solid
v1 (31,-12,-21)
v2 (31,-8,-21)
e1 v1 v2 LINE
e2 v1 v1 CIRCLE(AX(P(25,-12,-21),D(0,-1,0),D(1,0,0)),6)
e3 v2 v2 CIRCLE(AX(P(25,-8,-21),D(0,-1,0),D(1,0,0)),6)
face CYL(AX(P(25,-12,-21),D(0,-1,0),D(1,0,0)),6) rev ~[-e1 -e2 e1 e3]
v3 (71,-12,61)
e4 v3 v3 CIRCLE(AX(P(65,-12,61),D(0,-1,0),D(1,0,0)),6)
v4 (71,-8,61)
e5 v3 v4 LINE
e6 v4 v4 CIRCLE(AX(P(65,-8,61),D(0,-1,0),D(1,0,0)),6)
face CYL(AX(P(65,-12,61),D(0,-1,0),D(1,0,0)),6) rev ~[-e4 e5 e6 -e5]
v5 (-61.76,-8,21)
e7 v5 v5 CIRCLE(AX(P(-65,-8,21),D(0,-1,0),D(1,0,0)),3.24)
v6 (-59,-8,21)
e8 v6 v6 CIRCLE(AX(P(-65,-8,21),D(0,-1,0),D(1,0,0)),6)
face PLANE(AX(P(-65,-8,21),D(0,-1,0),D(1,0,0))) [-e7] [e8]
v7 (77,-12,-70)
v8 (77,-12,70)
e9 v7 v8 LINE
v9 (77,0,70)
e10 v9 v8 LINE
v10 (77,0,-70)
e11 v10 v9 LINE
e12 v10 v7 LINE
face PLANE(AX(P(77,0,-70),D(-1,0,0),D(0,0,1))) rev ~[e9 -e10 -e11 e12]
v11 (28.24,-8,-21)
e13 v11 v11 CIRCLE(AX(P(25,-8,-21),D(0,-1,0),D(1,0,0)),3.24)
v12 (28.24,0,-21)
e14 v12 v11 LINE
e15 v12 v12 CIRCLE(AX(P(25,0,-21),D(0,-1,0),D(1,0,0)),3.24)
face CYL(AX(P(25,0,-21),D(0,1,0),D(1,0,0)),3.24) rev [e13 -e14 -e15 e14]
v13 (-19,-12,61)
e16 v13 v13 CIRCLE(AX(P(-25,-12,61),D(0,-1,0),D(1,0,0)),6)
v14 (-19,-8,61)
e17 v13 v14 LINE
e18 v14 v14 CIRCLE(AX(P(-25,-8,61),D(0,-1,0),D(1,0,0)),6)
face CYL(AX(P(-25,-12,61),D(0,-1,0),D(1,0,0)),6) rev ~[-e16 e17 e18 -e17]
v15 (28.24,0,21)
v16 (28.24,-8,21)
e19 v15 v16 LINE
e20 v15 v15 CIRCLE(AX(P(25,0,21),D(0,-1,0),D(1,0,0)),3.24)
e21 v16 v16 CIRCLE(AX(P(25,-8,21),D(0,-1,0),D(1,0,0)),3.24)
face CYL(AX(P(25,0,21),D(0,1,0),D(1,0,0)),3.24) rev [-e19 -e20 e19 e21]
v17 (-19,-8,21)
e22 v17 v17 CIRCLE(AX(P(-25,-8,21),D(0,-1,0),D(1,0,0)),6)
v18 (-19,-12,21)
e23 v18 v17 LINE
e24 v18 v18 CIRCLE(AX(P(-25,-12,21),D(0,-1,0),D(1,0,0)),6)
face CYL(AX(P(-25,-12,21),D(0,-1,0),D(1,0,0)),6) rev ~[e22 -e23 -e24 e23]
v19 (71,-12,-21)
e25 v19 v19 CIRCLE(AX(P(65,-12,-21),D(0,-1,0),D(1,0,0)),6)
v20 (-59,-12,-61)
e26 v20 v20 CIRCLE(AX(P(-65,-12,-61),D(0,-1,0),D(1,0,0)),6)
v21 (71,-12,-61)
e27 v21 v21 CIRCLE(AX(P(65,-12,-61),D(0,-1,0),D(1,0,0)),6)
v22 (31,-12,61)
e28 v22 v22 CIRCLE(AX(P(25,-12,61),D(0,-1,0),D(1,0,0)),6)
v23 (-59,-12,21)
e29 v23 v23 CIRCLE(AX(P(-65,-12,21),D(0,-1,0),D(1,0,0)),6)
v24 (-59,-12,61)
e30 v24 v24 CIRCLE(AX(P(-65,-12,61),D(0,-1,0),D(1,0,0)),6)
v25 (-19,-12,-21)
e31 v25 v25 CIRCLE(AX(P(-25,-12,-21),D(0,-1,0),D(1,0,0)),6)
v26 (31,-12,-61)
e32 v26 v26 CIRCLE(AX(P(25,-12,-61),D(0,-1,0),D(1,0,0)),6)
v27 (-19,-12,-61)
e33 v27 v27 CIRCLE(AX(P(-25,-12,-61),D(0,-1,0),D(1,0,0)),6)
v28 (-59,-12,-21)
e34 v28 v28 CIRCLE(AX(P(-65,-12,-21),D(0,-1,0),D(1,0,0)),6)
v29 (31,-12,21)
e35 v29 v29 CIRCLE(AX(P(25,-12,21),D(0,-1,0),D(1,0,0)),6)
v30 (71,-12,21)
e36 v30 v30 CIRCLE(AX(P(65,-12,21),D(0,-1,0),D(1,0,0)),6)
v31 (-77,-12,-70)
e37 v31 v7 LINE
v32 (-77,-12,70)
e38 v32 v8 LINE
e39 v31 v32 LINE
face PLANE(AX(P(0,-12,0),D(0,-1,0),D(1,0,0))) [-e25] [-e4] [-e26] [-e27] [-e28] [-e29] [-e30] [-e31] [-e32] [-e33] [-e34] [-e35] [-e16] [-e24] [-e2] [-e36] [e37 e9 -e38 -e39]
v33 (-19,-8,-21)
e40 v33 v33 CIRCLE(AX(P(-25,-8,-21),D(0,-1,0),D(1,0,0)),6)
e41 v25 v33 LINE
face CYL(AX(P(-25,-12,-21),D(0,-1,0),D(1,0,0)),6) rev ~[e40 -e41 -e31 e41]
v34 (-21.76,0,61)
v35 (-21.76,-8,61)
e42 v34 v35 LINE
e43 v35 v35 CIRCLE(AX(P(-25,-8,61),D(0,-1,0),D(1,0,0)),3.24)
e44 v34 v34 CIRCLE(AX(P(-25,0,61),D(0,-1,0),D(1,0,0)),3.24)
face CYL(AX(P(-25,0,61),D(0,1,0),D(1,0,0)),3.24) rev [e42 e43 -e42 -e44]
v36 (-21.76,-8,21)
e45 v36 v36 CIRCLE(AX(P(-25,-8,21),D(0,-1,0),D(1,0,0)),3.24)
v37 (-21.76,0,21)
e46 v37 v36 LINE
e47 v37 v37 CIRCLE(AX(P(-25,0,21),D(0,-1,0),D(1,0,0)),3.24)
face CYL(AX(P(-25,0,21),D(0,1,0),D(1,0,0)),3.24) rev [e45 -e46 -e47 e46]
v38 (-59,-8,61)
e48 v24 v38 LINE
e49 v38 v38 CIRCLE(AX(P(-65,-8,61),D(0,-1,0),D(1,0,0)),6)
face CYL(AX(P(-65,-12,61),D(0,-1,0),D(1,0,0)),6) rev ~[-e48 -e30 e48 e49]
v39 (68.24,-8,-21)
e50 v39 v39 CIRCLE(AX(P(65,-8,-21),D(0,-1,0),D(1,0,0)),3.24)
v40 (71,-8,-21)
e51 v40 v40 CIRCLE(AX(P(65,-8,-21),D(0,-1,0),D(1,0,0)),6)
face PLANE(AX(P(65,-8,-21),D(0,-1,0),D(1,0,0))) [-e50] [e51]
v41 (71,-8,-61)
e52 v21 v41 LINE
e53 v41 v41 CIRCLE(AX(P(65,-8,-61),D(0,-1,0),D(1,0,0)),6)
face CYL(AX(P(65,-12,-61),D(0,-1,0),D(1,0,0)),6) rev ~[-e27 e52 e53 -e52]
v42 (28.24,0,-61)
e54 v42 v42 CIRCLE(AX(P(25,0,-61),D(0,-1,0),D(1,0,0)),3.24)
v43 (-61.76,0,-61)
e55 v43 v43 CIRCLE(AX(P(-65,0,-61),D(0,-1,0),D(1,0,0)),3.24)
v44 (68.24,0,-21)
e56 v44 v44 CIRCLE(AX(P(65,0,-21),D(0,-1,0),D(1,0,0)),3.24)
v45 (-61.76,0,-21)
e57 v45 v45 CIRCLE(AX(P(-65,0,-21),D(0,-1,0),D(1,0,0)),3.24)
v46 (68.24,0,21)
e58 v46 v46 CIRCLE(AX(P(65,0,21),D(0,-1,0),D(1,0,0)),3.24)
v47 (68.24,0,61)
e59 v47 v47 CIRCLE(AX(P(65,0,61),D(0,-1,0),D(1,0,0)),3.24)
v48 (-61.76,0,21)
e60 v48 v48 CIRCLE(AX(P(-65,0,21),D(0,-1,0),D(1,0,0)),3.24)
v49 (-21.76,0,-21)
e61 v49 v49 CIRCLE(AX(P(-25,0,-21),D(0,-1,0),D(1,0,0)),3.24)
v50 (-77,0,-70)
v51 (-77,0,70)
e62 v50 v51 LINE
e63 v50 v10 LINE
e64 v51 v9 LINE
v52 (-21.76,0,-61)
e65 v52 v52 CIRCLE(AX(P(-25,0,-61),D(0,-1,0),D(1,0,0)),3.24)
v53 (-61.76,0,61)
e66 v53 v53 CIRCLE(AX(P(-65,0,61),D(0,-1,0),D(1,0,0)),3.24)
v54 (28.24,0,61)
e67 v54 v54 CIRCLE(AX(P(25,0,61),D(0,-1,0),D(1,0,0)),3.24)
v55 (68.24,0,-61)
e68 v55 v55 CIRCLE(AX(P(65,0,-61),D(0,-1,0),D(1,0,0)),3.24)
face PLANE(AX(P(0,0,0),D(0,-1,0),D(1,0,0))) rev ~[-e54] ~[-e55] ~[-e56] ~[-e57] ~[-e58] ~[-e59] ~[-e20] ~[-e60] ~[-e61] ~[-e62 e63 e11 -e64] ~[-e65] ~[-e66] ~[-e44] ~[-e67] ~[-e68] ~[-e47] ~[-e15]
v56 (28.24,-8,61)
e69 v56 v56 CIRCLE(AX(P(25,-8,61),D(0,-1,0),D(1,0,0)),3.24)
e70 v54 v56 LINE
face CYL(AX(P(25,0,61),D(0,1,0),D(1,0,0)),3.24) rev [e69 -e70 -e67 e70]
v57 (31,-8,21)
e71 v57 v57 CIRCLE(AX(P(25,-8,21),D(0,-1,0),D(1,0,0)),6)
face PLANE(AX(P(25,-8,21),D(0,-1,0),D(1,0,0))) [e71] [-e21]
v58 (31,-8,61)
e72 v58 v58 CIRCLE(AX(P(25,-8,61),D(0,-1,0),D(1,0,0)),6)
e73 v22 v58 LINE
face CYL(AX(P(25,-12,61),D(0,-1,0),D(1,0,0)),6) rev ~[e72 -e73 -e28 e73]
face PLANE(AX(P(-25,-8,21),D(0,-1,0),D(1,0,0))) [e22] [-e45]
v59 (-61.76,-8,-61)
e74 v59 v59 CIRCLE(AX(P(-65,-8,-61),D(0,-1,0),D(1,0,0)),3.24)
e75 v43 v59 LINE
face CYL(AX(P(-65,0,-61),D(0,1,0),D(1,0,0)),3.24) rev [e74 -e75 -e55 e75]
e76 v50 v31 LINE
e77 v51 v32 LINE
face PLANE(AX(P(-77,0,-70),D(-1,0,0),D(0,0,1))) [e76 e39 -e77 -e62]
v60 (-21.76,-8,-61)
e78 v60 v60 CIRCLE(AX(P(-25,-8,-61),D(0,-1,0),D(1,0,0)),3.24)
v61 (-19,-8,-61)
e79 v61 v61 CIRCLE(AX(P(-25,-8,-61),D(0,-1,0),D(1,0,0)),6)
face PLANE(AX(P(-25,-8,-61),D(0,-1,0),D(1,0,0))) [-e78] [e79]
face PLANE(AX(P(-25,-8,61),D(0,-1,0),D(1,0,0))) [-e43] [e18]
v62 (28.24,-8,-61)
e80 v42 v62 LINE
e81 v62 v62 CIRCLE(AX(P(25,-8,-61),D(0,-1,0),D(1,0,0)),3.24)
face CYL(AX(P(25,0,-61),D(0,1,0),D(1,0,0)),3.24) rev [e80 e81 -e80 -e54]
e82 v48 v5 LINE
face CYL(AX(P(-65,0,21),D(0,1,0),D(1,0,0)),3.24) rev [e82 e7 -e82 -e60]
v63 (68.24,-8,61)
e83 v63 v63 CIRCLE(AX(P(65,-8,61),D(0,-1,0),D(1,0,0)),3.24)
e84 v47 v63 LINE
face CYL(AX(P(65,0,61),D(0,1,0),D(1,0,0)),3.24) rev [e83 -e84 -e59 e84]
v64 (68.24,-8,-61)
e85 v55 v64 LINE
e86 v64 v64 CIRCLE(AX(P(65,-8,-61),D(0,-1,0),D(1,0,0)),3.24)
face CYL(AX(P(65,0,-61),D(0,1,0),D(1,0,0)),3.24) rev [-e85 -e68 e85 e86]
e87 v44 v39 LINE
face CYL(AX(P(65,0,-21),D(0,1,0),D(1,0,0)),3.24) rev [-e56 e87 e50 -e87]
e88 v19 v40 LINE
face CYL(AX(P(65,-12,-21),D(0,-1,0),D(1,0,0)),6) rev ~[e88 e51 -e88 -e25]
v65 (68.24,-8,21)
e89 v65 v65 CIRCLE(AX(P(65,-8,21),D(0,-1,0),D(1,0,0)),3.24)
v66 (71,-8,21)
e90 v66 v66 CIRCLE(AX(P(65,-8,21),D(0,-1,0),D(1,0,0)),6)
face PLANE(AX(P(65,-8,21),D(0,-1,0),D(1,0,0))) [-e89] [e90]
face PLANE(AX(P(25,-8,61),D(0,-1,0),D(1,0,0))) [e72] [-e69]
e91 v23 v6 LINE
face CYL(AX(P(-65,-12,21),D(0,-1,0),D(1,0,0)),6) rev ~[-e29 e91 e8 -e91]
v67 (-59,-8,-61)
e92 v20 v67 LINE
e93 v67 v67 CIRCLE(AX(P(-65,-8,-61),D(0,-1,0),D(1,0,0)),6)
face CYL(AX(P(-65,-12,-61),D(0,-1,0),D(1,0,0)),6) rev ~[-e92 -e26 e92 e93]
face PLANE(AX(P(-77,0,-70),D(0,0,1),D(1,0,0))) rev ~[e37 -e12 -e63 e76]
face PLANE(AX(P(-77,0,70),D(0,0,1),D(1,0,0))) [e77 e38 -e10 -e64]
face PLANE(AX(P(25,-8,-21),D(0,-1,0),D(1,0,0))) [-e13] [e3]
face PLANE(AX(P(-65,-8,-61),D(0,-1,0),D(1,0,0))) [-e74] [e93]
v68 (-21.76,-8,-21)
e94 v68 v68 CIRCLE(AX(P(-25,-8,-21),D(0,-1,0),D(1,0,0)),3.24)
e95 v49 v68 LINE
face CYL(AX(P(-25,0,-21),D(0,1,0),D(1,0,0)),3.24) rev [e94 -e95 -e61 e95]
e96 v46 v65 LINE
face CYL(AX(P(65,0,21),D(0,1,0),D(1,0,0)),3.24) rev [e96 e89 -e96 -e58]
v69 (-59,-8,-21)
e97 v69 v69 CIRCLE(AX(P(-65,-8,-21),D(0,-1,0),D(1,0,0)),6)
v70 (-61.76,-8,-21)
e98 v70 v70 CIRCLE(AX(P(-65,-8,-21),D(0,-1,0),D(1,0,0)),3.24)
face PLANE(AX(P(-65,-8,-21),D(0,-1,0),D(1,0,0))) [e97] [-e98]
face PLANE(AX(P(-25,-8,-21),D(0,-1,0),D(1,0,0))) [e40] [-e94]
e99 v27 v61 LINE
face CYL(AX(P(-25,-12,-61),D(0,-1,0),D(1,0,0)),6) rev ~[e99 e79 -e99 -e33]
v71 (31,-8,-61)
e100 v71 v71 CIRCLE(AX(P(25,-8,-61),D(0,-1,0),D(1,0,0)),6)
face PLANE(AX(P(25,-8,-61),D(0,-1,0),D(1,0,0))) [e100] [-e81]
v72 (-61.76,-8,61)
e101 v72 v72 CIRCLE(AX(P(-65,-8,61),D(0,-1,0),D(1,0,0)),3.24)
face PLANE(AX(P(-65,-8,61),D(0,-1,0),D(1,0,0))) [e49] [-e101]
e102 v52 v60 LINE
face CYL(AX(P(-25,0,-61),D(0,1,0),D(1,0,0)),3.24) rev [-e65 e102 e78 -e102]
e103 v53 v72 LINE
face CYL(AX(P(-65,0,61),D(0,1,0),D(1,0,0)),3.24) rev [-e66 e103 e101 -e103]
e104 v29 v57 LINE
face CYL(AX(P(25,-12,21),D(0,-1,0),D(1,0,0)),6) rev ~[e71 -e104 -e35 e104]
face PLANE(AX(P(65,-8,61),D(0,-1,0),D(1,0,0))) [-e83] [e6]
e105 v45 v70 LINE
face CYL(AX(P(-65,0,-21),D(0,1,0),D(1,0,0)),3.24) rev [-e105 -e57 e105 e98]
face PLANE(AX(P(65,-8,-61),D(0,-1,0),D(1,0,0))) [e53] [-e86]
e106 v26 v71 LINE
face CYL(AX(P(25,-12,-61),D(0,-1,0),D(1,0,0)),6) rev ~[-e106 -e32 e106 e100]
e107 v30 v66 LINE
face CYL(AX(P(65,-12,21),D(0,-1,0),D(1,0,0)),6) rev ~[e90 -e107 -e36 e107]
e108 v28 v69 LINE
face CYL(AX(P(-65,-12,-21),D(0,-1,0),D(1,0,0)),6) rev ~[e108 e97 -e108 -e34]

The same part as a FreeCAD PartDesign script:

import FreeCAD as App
import Part
import Sketcher
from FreeCAD import Vector
Q = App.Units.Quantity

doc = App.newDocument("Part")
body = doc.addObject("PartDesign::Body", "Body")

sketch1 = body.newObject("Sketcher::SketchObject", "Sketch")
sketch1.AttachmentSupport = (doc.getObject("XZ_Plane"), [""])
sketch1.MapMode = "FlatFace"
sketch1.addGeometry([
    Part.LineSegment(Vector(-77, 70, 0), Vector(-77, -70, 0)),
    Part.LineSegment(Vector(-77, -70, 0), Vector(77, -70, 0)),
    Part.LineSegment(Vector(77, -70, 0), Vector(77, 70, 0)),
    Part.LineSegment(Vector(77, 70, 0), Vector(-77, 70, 0)),
    Part.Circle(Vector(-65, -61, 0), Vector(0, 0, 1), 3.2),
    Part.Circle(Vector(-25, -61, 0), Vector(0, 0, 1), 3.2),
    Part.Circle(Vector(-65, -21, 0), Vector(0, 0, 1), 3.2),
    Part.Circle(Vector(-25, -21, 0), Vector(0, 0, 1), 3.2),
    Part.Circle(Vector(25, -61, 0), Vector(0, 0, 1), 3.2),
    Part.Circle(Vector(65, -61, 0), Vector(0, 0, 1), 3.2),
    Part.Circle(Vector(25, -21, 0), Vector(0, 0, 1), 3.2),
    Part.Circle(Vector(65, -21, 0), Vector(0, 0, 1), 3.2),
    Part.Circle(Vector(-65, 21, 0), Vector(0, 0, 1), 3.2),
    Part.Circle(Vector(-25, 21, 0), Vector(0, 0, 1), 3.2),
    Part.Circle(Vector(-65, 61, 0), Vector(0, 0, 1), 3.2),
    Part.Circle(Vector(-25, 61, 0), Vector(0, 0, 1), 3.2),
    Part.Circle(Vector(25, 21, 0), Vector(0, 0, 1), 3.2),
    Part.Circle(Vector(65, 21, 0), Vector(0, 0, 1), 3.2),
    Part.Circle(Vector(25, 61, 0), Vector(0, 0, 1), 3.2),
    Part.Circle(Vector(65, 61, 0), Vector(0, 0, 1), 3.2),
], False)
sketch1.addConstraint([
    Sketcher.Constraint("Coincident", 0, 2, 1, 1),
    Sketcher.Constraint("Coincident", 1, 2, 2, 1),
    Sketcher.Constraint("Coincident", 2, 2, 3, 1),
    Sketcher.Constraint("Coincident", 3, 2, 0, 1),
    Sketcher.Constraint("Vertical", 0),
    Sketcher.Constraint("Horizontal", 1),
    Sketcher.Constraint("Vertical", 2),
    Sketcher.Constraint("Horizontal", 3),
    Sketcher.Constraint("Equal", 4, 5),
    Sketcher.Constraint("Equal", 5, 6),
    Sketcher.Constraint("Equal", 6, 7),
    Sketcher.Constraint("Equal", 7, 8),
    Sketcher.Constraint("Equal", 8, 9),
    Sketcher.Constraint("Equal", 9, 10),
    Sketcher.Constraint("Equal", 10, 11),
    Sketcher.Constraint("Equal", 11, 12),
    Sketcher.Constraint("Equal", 12, 13),
    Sketcher.Constraint("Equal", 13, 14),
    Sketcher.Constraint("Equal", 14, 15),
    Sketcher.Constraint("Equal", 15, 16),
    Sketcher.Constraint("Equal", 16, 17),
    Sketcher.Constraint("Equal", 17, 18),
    Sketcher.Constraint("Equal", 18, 19),
    Sketcher.Constraint("Symmetric", 11, 3, 12, 3, -1, 1),
    Sketcher.Constraint("Symmetric", 10, 3, 13, 3, -1, 1),
    Sketcher.Constraint("Symmetric", 9, 3, 14, 3, -1, 1),
    Sketcher.Constraint("Symmetric", 8, 3, 15, 3, -1, 1),
    Sketcher.Constraint("Symmetric", 7, 3, 16, 3, -1, 1),
    Sketcher.Constraint("Symmetric", 6, 3, 17, 3, -1, 1),
    Sketcher.Constraint("Symmetric", 5, 3, 18, 3, -1, 1),
    Sketcher.Constraint("Symmetric", 4, 3, 19, 3, -1, 1),
    Sketcher.Constraint("Symmetric", 0, 2, 2, 2, -1, 1),
    Sketcher.Constraint("Symmetric", 5, 3, 8, 3, -2),
    Sketcher.Constraint("Symmetric", 4, 3, 9, 3, -2),
    Sketcher.Constraint("Symmetric", 7, 3, 10, 3, -2),
    Sketcher.Constraint("Symmetric", 6, 3, 11, 3, -2),
    Sketcher.Constraint("Horizontal", 4, 3, 5, 3),
    Sketcher.Constraint("Horizontal", 6, 3, 7, 3),
    Sketcher.Constraint("Vertical", 4, 3, 6, 3),
    Sketcher.Constraint("Vertical", 5, 3, 7, 3),
    Sketcher.Constraint("Diameter", 4, Q("6.48 mm")),
    Sketcher.Constraint("DistanceX", 1, 1, 1, 2, Q("154 mm")),
    Sketcher.Constraint("DistanceY", 0, 2, 0, 1, Q("140 mm")),
    Sketcher.Constraint("DistanceX", 4, 3, -1, 1, Q("65 mm")),
    Sketcher.Constraint("DistanceY", 4, 3, -1, 1, Q("61 mm")),
    Sketcher.Constraint("DistanceX", 5, 3, -1, 1, Q("25 mm")),
    Sketcher.Constraint("DistanceY", 6, 3, -1, 1, Q("21 mm")),
])
pad1 = body.newObject("PartDesign::Pad", "Pad")
pad1.Profile = sketch1
pad1.Length = 12

sketch2 = body.newObject("Sketcher::SketchObject", "Sketch001")
sketch2.AttachmentSupport = (doc.getObject("XZ_Plane"), [""])
sketch2.MapMode = "FlatFace"
sketch2.AttachmentOffset = App.Placement(Vector(0, 0, 12), App.Rotation())
sketch2.addGeometry([
    Part.Circle(Vector(-65, 61, 0), Vector(0, 0, 1), 6),
    Part.Circle(Vector(-65, 61, 0), Vector(0, 0, 1), 3.2),
    Part.Circle(Vector(-25, 61, 0), Vector(0, 0, 1), 6),
    Part.Circle(Vector(-25, 61, 0), Vector(0, 0, 1), 3.2),
    Part.Circle(Vector(25, 61, 0), Vector(0, 0, 1), 6),
    Part.Circle(Vector(25, 61, 0), Vector(0, 0, 1), 3.2),
    Part.Circle(Vector(65, 61, 0), Vector(0, 0, 1), 6),
    Part.Circle(Vector(65, 61, 0), Vector(0, 0, 1), 3.2),
    Part.Circle(Vector(65, 21, 0), Vector(0, 0, 1), 6),
    Part.Circle(Vector(65, 21, 0), Vector(0, 0, 1), 3.2),
    Part.Circle(Vector(25, 21, 0), Vector(0, 0, 1), 6),
    Part.Circle(Vector(25, 21, 0), Vector(0, 0, 1), 3.2),
    Part.Circle(Vector(-25, 21, 0), Vector(0, 0, 1), 6),
    Part.Circle(Vector(-25, 21, 0), Vector(0, 0, 1), 3.2),
    Part.Circle(Vector(-65, 21, 0), Vector(0, 0, 1), 6),
    Part.Circle(Vector(-65, 21, 0), Vector(0, 0, 1), 3.2),
    Part.Circle(Vector(-65, -21, 0), Vector(0, 0, 1), 6),
    Part.Circle(Vector(-65, -21, 0), Vector(0, 0, 1), 3.2),
    Part.Circle(Vector(-25, -21, 0), Vector(0, 0, 1), 6),
    Part.Circle(Vector(-25, -21, 0), Vector(0, 0, 1), 3.2),
    Part.Circle(Vector(25, -21, 0), Vector(0, 0, 1), 6),
    Part.Circle(Vector(25, -21, 0), Vector(0, 0, 1), 3.2),
    Part.Circle(Vector(65, -21, 0), Vector(0, 0, 1), 6),
    Part.Circle(Vector(65, -21, 0), Vector(0, 0, 1), 3.2),
    Part.Circle(Vector(65, -61, 0), Vector(0, 0, 1), 6),
    Part.Circle(Vector(65, -61, 0), Vector(0, 0, 1), 3.2),
    Part.Circle(Vector(25, -61, 0), Vector(0, 0, 1), 6),
    Part.Circle(Vector(25, -61, 0), Vector(0, 0, 1), 3.2),
    Part.Circle(Vector(-25, -61, 0), Vector(0, 0, 1), 6),
    Part.Circle(Vector(-25, -61, 0), Vector(0, 0, 1), 3.2),
    Part.Circle(Vector(-65, -61, 0), Vector(0, 0, 1), 6),
    Part.Circle(Vector(-65, -61, 0), Vector(0, 0, 1), 3.2),
], False)
sketch2.addConstraint([
    Sketcher.Constraint("Coincident", 1, 3, 0, 3),
    Sketcher.Constraint("Coincident", 3, 3, 2, 3),
    Sketcher.Constraint("Coincident", 5, 3, 4, 3),
    Sketcher.Constraint("Coincident", 7, 3, 6, 3),
    Sketcher.Constraint("Coincident", 9, 3, 8, 3),
    Sketcher.Constraint("Coincident", 11, 3, 10, 3),
    Sketcher.Constraint("Coincident", 13, 3, 12, 3),
    Sketcher.Constraint("Coincident", 15, 3, 14, 3),
    Sketcher.Constraint("Coincident", 17, 3, 16, 3),
    Sketcher.Constraint("Coincident", 19, 3, 18, 3),
    Sketcher.Constraint("Coincident", 21, 3, 20, 3),
    Sketcher.Constraint("Coincident", 23, 3, 22, 3),
    Sketcher.Constraint("Coincident", 25, 3, 24, 3),
    Sketcher.Constraint("Coincident", 27, 3, 26, 3),
    Sketcher.Constraint("Coincident", 29, 3, 28, 3),
    Sketcher.Constraint("Coincident", 31, 3, 30, 3),
    Sketcher.Constraint("Equal", 0, 2),
    Sketcher.Constraint("Equal", 1, 3),
    Sketcher.Constraint("Equal", 2, 4),
    Sketcher.Constraint("Equal", 3, 5),
    Sketcher.Constraint("Equal", 4, 6),
    Sketcher.Constraint("Equal", 5, 7),
    Sketcher.Constraint("Equal", 6, 8),
    Sketcher.Constraint("Equal", 7, 9),
    Sketcher.Constraint("Equal", 8, 10),
    Sketcher.Constraint("Equal", 9, 11),
    Sketcher.Constraint("Equal", 10, 12),
    Sketcher.Constraint("Equal", 11, 13),
    Sketcher.Constraint("Equal", 12, 14),
    Sketcher.Constraint("Equal", 13, 15),
    Sketcher.Constraint("Equal", 14, 16),
    Sketcher.Constraint("Equal", 15, 17),
    Sketcher.Constraint("Equal", 16, 18),
    Sketcher.Constraint("Equal", 17, 19),
    Sketcher.Constraint("Equal", 18, 20),
    Sketcher.Constraint("Equal", 19, 21),
    Sketcher.Constraint("Equal", 20, 22),
    Sketcher.Constraint("Equal", 21, 23),
    Sketcher.Constraint("Equal", 22, 24),
    Sketcher.Constraint("Equal", 23, 25),
    Sketcher.Constraint("Equal", 24, 26),
    Sketcher.Constraint("Equal", 25, 27),
    Sketcher.Constraint("Equal", 26, 28),
    Sketcher.Constraint("Equal", 27, 29),
    Sketcher.Constraint("Equal", 28, 30),
    Sketcher.Constraint("Equal", 29, 31),
    Sketcher.Constraint("Symmetric", 8, 3, 16, 3, -1, 1),
    Sketcher.Constraint("Symmetric", 10, 3, 18, 3, -1, 1),
    Sketcher.Constraint("Symmetric", 12, 3, 20, 3, -1, 1),
    Sketcher.Constraint("Symmetric", 14, 3, 22, 3, -1, 1),
    Sketcher.Constraint("Symmetric", 0, 3, 24, 3, -1, 1),
    Sketcher.Constraint("Symmetric", 2, 3, 26, 3, -1, 1),
    Sketcher.Constraint("Symmetric", 4, 3, 28, 3, -1, 1),
    Sketcher.Constraint("Symmetric", 6, 3, 30, 3, -1, 1),
    Sketcher.Constraint("Symmetric", 2, 3, 4, 3, -2),
    Sketcher.Constraint("Symmetric", 0, 3, 6, 3, -2),
    Sketcher.Constraint("Symmetric", 10, 3, 12, 3, -2),
    Sketcher.Constraint("Symmetric", 8, 3, 14, 3, -2),
    Sketcher.Constraint("Horizontal", 1, 3, 2, 3),
    Sketcher.Constraint("Horizontal", 9, 3, 10, 3),
    Sketcher.Constraint("Vertical", 7, 3, 8, 3),
    Sketcher.Constraint("Vertical", 5, 3, 10, 3),
    Sketcher.Constraint("Diameter", 0, Q("12 mm")),
    Sketcher.Constraint("Diameter", 1, Q("6.48 mm")),
    Sketcher.Constraint("DistanceX", 0, 3, -1, 1, Q("65 mm")),
    Sketcher.Constraint("DistanceY", -1, 1, 0, 3, Q("61 mm")),
    Sketcher.Constraint("DistanceX", 2, 3, -1, 1, Q("25 mm")),
    Sketcher.Constraint("DistanceY", -1, 1, 8, 3, Q("21 mm")),
])
pocket1 = body.newObject("PartDesign::Pocket", "Pocket")
pocket1.Profile = sketch2
pocket1.Length = 4

doc.recompute()
